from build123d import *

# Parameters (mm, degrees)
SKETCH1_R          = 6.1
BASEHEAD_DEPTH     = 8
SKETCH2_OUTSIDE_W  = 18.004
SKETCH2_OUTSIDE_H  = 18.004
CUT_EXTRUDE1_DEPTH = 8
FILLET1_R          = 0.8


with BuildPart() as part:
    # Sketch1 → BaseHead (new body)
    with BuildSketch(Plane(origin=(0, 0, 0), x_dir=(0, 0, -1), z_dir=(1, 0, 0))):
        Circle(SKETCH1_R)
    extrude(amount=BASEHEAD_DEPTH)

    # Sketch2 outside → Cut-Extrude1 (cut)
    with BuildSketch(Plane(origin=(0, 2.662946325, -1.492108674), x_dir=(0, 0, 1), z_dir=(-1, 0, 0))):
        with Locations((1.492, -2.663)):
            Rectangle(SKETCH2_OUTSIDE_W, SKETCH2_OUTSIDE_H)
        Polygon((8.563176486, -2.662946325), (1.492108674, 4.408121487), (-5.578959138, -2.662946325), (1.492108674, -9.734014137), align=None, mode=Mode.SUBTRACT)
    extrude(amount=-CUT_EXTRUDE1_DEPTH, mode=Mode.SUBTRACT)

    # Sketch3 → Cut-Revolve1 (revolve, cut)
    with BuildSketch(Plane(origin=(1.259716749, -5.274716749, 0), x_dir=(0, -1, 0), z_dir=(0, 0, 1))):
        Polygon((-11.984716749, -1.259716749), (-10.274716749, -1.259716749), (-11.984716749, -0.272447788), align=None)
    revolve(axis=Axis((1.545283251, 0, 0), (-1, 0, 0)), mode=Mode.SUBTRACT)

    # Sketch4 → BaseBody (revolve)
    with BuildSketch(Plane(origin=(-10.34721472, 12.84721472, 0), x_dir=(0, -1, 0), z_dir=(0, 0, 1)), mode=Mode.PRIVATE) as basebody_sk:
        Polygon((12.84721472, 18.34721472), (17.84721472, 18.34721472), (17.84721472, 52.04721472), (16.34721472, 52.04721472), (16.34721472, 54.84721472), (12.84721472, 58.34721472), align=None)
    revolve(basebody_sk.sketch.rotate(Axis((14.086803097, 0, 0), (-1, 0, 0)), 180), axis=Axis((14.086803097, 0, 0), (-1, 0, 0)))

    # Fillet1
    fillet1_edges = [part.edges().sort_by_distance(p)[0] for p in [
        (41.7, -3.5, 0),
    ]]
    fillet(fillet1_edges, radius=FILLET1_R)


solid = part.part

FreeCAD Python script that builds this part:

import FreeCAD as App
import Part
import Sketcher
Q = App.Units.Quantity


def edges_at(feature, points):
    """Names of the edges that pass closest to the given points."""
    edges = feature.Shape.Edges
    near = lambda p: min(range(len(edges)), key=lambda i: edges[i].distToShape(Part.Vertex(*p))[0])
    return sorted({f"Edge{near(p) + 1}" for p in points})


def add_polygon(sketch, points):
    """Adds a closed chain of lines whose ends are joined by coincident constraints."""
    first, n = sketch.GeometryCount, len(points)
    for a, b in zip(points, points[1:] + points[:1]):
        sketch.addGeometry(Part.LineSegment(App.Vector(*a, 0), App.Vector(*b, 0)), False)
    for i in range(n):
        sketch.addConstraint(Sketcher.Constraint("Coincident", first + i, 2, first + (i + 1) % n, 1))

doc = App.newDocument("Part")
body = doc.addObject("PartDesign::Body", "Body")

sketch1 = body.newObject("Sketcher::SketchObject", "Sketch")
sketch1.AttachmentSupport = (doc.getObject("YZ_Plane"), [""])
sketch1.MapMode = "FlatFace"
sketch1.addGeometry(Part.Circle(App.Vector(0, 0, 0), App.Vector(0, 0, 1), 6), False)
sketch1.addConstraint([
    Sketcher.Constraint("Coincident", 0, 3, -1, 1),
    Sketcher.Constraint("Diameter", 0, 12.2),
])
pad1 = body.newObject("PartDesign::Pad", "Pad")
pad1.Profile = sketch1
pad1.Length = 8

sketch2 = body.newObject("Sketcher::SketchObject", "Sketch001")
sketch2.AttachmentSupport = (doc.getObject("YZ_Plane"), [""])
sketch2.MapMode = "FlatFace"
add_polygon(sketch2, [(9, -9), (-9, -9), (-9, 9), (9, 9)])
add_polygon(sketch2, [(7, 0), (0, 7), (-7, 0), (0, -7)])
sketch2.addConstraint([
    Sketcher.Constraint("Horizontal", 0),
    Sketcher.Constraint("Vertical", 1),
    Sketcher.Constraint("Horizontal", 2),
    Sketcher.Constraint("Vertical", 3),
    Sketcher.Constraint("Symmetric", 4, 2, 6, 2, -1, 1),
    Sketcher.Constraint("Symmetric", 5, 2, 7, 2, -1, 1),
    Sketcher.Constraint("PointOnObject", 4, 2, -2),
    Sketcher.Constraint("PointOnObject", 5, 2, -1),
    Sketcher.Constraint("Perpendicular", 4, 5),
    Sketcher.Constraint("Equal", 2, 1),
    Sketcher.Constraint("Distance", 4, 10.0),
    Sketcher.Constraint("DistanceX", 0, 2, 0, 1, 18.004),
    Sketcher.Constraint("DistanceY", 0, 2, -1, 1, 9.002109),
    Sketcher.Constraint("DistanceX", 7, 2, 2, 2, 1.930879),
])
pocket1 = body.newObject("PartDesign::Pocket", "Pocket")
pocket1.Profile = sketch2
pocket1.Length = 8
pocket1.Reversed = True

sketch3 = body.newObject("Sketcher::SketchObject", "Sketch002")
sketch3.AttachmentSupport = (doc.getObject("XY_Plane"), [""])
sketch3.MapMode = "FlatFace"
add_polygon(sketch3, [(0, 6.7), (0, 5), (1, 6.7)])
sketch3.addConstraint([
    Sketcher.Constraint("Vertical", 0),
    Sketcher.Constraint("Horizontal", 2),
    Sketcher.Constraint("PointOnObject", 0, 2, -2),
    Sketcher.Constraint("Angle", 1, Q("60 deg")),
    Sketcher.Constraint("DistanceY", -1, 1, 0, 2, 5.0),
    Sketcher.Constraint("DistanceY", 0, 2, 0, 1, 1.71),
])
groove = body.newObject("PartDesign::Groove", "Groove")
groove.Profile = sketch3
groove.ReferenceAxis = (sketch3, ["H_Axis"])
groove.Angle = 360

sketch4 = body.newObject("Sketcher::SketchObject", "Sketch003")
sketch4.AttachmentSupport = (doc.getObject("XY_Plane"), [""])
sketch4.MapMode = "FlatFace"
add_polygon(sketch4, [(8, 0), (8, -5), (41.7, -5), (41.7, -3.5), (44.5, -3.5), (48, 0)])
sketch4.addConstraint([
    Sketcher.Constraint("Vertical", 0),
    Sketcher.Constraint("Horizontal", 1),
    Sketcher.Constraint("Vertical", 2),
    Sketcher.Constraint("Horizontal", 3),
    Sketcher.Constraint("Horizontal", 5),
    Sketcher.Constraint("PointOnObject", 4, 2, -1),
    Sketcher.Constraint("DistanceX", 5, 2, 5, 1, 40.0),
    Sketcher.Constraint("DistanceY", 0, 2, 0, 1, 5.0),
    Sketcher.Constraint("Angle", 4, Q("45 deg")),
    Sketcher.Constraint("DistanceX", 1, 1, 1, 2, 33.7),
    Sketcher.Constraint("DistanceX", 3, 1, 3, 2, 2.8),
    Sketcher.Constraint("DistanceX", -1, 1, 0, 2, 8.0),
])
revolution = body.newObject("PartDesign::Revolution", "Revolution")
revolution.Profile = sketch4
revolution.ReferenceAxis = (sketch4, ["H_Axis"])
revolution.Angle = 360
doc.recompute()

fillet = body.newObject("PartDesign::Fillet", "Fillet")
fillet.Base = (revolution, edges_at(revolution, [(41.7, -3.5, 0)]))
fillet.Radius = 0.8

doc.recompute()
